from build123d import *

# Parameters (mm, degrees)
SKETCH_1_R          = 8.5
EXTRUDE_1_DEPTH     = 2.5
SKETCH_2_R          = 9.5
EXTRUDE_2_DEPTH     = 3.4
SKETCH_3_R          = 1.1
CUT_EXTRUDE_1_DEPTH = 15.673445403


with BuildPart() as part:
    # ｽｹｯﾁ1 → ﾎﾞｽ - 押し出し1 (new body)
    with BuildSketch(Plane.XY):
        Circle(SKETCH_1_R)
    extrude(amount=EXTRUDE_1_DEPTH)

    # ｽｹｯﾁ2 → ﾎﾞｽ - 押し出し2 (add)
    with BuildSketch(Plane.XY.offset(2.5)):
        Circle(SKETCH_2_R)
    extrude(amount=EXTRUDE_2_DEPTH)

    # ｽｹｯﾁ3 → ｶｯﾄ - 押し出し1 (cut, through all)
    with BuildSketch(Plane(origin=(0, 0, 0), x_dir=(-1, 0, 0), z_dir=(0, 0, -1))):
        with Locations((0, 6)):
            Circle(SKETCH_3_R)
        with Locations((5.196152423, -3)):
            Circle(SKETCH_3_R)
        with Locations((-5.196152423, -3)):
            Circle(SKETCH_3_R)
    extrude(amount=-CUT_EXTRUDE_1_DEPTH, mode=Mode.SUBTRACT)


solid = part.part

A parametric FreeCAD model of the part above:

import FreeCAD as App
import Part
import Sketcher

V = App.Vector

doc = App.newDocument("Part")
body = doc.addObject("PartDesign::Body", "Body")

# Sketch on XY plane
sketch1 = body.newObject("Sketcher::SketchObject", "Sketch")
sketch1.AttachmentSupport = (doc.getObject("XY_Plane"), [""])
sketch1.MapMode = "FlatFace"
sketch1.addGeometry(Part.Circle(V(0, 0, 0), V(0, 0, 1), 8.5), False)
sketch1.addConstraint(Sketcher.Constraint("Coincident", 0, 3, -1, 1))
sketch1.addConstraint(Sketcher.Constraint("Diameter", 0, 17.0))
pad1 = body.newObject("PartDesign::Pad", "Pad")
pad1.Profile = sketch1
pad1.Length = 2.5

# Sketch on XY plane
sketch2 = body.newObject("Sketcher::SketchObject", "Sketch001")
sketch2.AttachmentSupport = (doc.getObject("XY_Plane"), [""])
sketch2.MapMode = "FlatFace"
sketch2.AttachmentOffset = App.Placement(V(0, 0, 2.5), App.Rotation())
sketch2.addGeometry(Part.Circle(V(0, 0, 0), V(0, 0, 1), 9.5), False)
sketch2.addConstraint(Sketcher.Constraint("Coincident", 0, 3, -1, 1))
sketch2.addConstraint(Sketcher.Constraint("Diameter", 0, 19.0))
pad2 = body.newObject("PartDesign::Pad", "Pad001")
pad2.Profile = sketch2
pad2.Length = 3.4

# Sketch on XY plane
sketch3 = body.newObject("Sketcher::SketchObject", "Sketch002")
sketch3.AttachmentSupport = (doc.getObject("XY_Plane"), [""])
sketch3.MapMode = "FlatFace"
sketch3.addGeometry(Part.Circle(V(0, 6, 0), V(0, 0, 1), 1.1), False)
sketch3.addGeometry(Part.Circle(V(-5.196152, -3, 0), V(0, 0, 1), 1.1), False)
sketch3.addGeometry(Part.Circle(V(5.196152, -3, 0), V(0, 0, 1), 1.1), False)
sketch3.addConstraint(Sketcher.Constraint("Equal", 0, 1))
sketch3.addConstraint(Sketcher.Constraint("Equal", 1, 2))
sketch3.addConstraint(Sketcher.Constraint("Symmetric", 1, 3, 2, 3, -2))
sketch3.addConstraint(Sketcher.Constraint("PointOnObject", 0, 3, -2))
sketch3.addConstraint(Sketcher.Constraint("Diameter", 0, 2.2))
sketch3.addConstraint(Sketcher.Constraint("DistanceY", -1, 1, 0, 3, 6.0))
sketch3.addConstraint(Sketcher.Constraint("DistanceY", 1, 3, -1, 1, 3.0))
sketch3.addConstraint(Sketcher.Constraint("DistanceX", 1, 3, -1, 1, 5.196152))
pocket1 = body.newObject("PartDesign::Pocket", "Pocket")
pocket1.Profile = sketch3
pocket1.Type = "ThroughAll"
pocket1.Reversed = True

doc.recompute()
